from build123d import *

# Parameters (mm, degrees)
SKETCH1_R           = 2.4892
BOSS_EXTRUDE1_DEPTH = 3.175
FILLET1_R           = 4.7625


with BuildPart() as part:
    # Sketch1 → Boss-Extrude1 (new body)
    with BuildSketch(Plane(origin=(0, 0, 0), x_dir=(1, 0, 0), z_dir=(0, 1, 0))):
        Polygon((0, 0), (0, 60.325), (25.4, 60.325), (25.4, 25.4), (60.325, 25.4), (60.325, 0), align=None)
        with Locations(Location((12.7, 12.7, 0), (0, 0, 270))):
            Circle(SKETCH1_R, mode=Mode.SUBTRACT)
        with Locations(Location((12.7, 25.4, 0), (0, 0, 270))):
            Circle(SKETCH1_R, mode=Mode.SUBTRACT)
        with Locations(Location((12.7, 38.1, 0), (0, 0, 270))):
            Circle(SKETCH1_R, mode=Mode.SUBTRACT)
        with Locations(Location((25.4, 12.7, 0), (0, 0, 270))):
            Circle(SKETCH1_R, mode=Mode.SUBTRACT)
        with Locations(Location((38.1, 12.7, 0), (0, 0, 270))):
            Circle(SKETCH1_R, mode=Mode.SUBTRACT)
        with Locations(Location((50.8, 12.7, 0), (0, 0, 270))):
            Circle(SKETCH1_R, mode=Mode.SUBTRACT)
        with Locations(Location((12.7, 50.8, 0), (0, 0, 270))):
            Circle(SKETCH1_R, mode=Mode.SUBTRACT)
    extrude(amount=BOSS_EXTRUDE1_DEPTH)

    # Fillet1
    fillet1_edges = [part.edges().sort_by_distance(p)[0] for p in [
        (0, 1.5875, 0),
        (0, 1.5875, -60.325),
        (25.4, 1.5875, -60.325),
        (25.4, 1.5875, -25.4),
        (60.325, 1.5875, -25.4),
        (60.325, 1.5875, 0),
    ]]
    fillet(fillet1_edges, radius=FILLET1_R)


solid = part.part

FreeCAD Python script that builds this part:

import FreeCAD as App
import Part
import Sketcher

V = App.Vector
Q = App.Units.Quantity


def edges_at(feature, points):
    """Names of the edges that pass closest to the given points."""
    edges = feature.Shape.Edges
    near = lambda p: min(range(len(edges)), key=lambda i: edges[i].distToShape(Part.Vertex(*p))[0])
    return sorted({f"Edge{near(p) + 1}" for p in points})


def add_polygon(sketch, points):
    """Adds a closed chain of lines whose ends are joined by coincident constraints."""
    first, n = sketch.GeometryCount, len(points)
    for a, b in zip(points, points[1:] + points[:1]):
        sketch.addGeometry(Part.LineSegment(App.Vector(*a, 0), App.Vector(*b, 0)), False)
    for i in range(n):
        sketch.addConstraint(Sketcher.Constraint("Coincident", first + i, 2, first + (i + 1) % n, 1))

doc = App.newDocument("Part")
body = doc.addObject("PartDesign::Body", "Body")

# Sketch on XZ plane
sketch1 = body.newObject("Sketcher::SketchObject", "Sketch")
sketch1.AttachmentSupport = (doc.getObject("XZ_Plane"), [""])
sketch1.MapMode = "FlatFace"
add_polygon(sketch1, [(0, -60.3), (0, 0), (60.3, 0), (60.3, -25.4), (25.4, -25.4), (25.4, -60.3)])  # lines 0-5
sketch1.addGeometry(Part.Circle(V(50.8, -12.7, 0), V(0, 0, 1), 2.5), False)  # 6
sketch1.addGeometry(Part.Circle(V(38.1, -12.7, 0), V(0, 0, 1), 2.5), False)  # 7
sketch1.addGeometry(Part.Circle(V(25.4, -12.7, 0), V(0, 0, 1), 2.5), False)  # 8
sketch1.addGeometry(Part.Circle(V(12.7, -12.7, 0), V(0, 0, 1), 2.5), False)  # 9
sketch1.addGeometry(Part.Circle(V(12.7, -25.4, 0), V(0, 0, 1), 2.5), False)  # 10
sketch1.addGeometry(Part.Circle(V(12.7, -38.1, 0), V(0, 0, 1), 2.5), False)  # 11
sketch1.addGeometry(Part.Circle(V(12.7, -50.8, 0), V(0, 0, 1), 2.5), False)  # 12
sketch1.addConstraint([
    Sketcher.Constraint("Vertical", 0),
    Sketcher.Constraint("Horizontal", 1),
    Sketcher.Constraint("Vertical", 2),
    Sketcher.Constraint("Horizontal", 3),
    Sketcher.Constraint("Vertical", 4),
    Sketcher.Constraint("Horizontal", 5),
    Sketcher.Constraint("Coincident", 0, 2, -1, 1),
    Sketcher.Constraint("Equal", 6, 7),
    Sketcher.Constraint("Equal", 7, 8),
    Sketcher.Constraint("Equal", 8, 9),
    Sketcher.Constraint("Equal", 9, 10),
    Sketcher.Constraint("Equal", 10, 11),
    Sketcher.Constraint("Equal", 11, 12),
    Sketcher.Constraint("Horizontal", 6, 3, 7, 3),
    Sketcher.Constraint("Horizontal", 7, 3, 8, 3),
    Sketcher.Constraint("Horizontal", 8, 3, 9, 3),
    Sketcher.Constraint("Horizontal", 10, 3, 2, 2),
    Sketcher.Constraint("Vertical", 9, 3, 10, 3),
    Sketcher.Constraint("Vertical", 10, 3, 11, 3),
    Sketcher.Constraint("Vertical", 11, 3, 12, 3),
    Sketcher.Constraint("Vertical", 8, 3, 3, 2),
    Sketcher.Constraint("Equal", 1, 0),
    Sketcher.Constraint("Equal", 5, 2),
    Sketcher.Constraint("DistanceX", 5, 2, 5, 1, Q("1 in")),
    Sketcher.Constraint("Diameter", 6, Q("0.196 in")),
    Sketcher.Constraint("DistanceX", -1, 1, 6, 3, Q("2 in")),
    Sketcher.Constraint("DistanceY", 12, 3, -1, 1, Q("2 in")),
    Sketcher.Constraint("DistanceX", 9, 3, 7, 3, Q("1 in")),
    Sketcher.Constraint("DistanceY", 11, 3, 9, 3, Q("1 in")),
    Sketcher.Constraint("DistanceY", 6, 3, -1, 1, Q("0.5 in")),
    Sketcher.Constraint("DistanceX", -1, 1, 7, 3, Q("1.5 in")),
    Sketcher.Constraint("DistanceX", 1, 1, 1, 2, Q("2.375 in")),
])
pad1 = body.newObject("PartDesign::Pad", "Pad")
pad1.Profile = sketch1
pad1.Length = Q("0.125 in")
pad1.Reversed = True
doc.recompute()

fillet = body.newObject("PartDesign::Fillet", "Fillet")
fillet.Base = (pad1, edges_at(pad1, [
    (0, 1.587, 0),
    (0, 1.587, -60.325),
    (25.4, 1.587, -60.325),
    (25.4, 1.587, -25.4),
    (60.325, 1.587, -25.4),
    (60.325, 1.587, 0),
]))
fillet.Radius = Q("0.1875 in")

doc.recompute()
